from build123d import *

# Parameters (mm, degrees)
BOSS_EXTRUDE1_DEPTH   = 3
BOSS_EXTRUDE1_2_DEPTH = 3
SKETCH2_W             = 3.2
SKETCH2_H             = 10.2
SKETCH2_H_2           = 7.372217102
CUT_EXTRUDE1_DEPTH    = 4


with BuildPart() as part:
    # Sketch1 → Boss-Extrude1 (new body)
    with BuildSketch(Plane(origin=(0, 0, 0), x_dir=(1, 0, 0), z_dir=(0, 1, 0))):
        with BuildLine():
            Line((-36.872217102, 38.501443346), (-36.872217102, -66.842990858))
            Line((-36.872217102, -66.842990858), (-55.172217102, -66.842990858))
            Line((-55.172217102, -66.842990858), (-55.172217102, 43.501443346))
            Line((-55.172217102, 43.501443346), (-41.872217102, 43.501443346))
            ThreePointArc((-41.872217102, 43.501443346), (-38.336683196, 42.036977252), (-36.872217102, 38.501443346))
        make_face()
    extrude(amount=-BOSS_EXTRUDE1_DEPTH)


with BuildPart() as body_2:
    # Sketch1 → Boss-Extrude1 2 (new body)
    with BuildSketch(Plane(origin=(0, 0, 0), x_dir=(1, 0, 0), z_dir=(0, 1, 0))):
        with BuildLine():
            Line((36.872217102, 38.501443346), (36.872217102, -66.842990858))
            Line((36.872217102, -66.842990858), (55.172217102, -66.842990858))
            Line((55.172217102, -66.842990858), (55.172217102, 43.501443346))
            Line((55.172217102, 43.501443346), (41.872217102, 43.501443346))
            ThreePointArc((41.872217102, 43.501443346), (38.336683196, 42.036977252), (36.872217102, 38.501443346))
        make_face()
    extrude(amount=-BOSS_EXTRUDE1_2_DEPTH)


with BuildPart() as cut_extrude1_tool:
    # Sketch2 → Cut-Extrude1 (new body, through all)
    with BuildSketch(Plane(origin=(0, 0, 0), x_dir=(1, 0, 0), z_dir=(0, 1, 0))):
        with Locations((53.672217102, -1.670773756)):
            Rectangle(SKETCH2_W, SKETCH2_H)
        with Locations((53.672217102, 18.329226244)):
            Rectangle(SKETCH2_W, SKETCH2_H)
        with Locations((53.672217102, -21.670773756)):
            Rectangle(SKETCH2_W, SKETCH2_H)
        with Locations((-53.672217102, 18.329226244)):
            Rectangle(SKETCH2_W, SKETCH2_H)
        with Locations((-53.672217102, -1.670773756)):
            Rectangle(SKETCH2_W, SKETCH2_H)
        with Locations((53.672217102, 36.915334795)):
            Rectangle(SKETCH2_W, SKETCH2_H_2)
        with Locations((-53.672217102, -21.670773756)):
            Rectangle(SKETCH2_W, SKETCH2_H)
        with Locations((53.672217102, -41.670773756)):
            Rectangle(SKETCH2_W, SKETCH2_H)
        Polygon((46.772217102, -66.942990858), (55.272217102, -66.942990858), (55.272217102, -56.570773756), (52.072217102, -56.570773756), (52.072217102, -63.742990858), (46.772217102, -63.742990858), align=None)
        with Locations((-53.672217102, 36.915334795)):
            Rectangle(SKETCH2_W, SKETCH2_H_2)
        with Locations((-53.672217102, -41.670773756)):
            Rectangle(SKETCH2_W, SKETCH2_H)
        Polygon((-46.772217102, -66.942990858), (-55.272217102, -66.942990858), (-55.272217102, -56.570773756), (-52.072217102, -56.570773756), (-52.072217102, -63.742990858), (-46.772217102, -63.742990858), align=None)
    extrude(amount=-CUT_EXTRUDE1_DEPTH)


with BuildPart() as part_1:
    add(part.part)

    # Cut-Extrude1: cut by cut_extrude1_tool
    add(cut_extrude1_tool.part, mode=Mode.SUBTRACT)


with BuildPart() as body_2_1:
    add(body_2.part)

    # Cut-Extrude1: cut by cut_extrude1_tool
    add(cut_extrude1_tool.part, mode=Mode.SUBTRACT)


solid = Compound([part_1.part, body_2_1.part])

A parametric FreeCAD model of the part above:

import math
import FreeCAD as App
import Part
import Sketcher

doc = App.newDocument("Part")
body = doc.addObject("PartDesign::Body", "Body")

# Sketch on XZ plane
sketch1 = doc.addObject("Sketcher::SketchObject", "Sketch")
body.addObject(sketch1)
sketch1.AttachmentSupport = (doc.XZ_Plane, [""])
sketch1.MapMode = "FlatFace"
sketch1.addGeometry([
    Part.LineSegment(App.Vector(-37, 67, 0), App.Vector(-37, -39, 0)),  # 0
    Part.ArcOfCircle(Part.Circle(App.Vector(-42, -39, 0), App.Vector(0, 0, 1), 5), math.radians(-90), math.radians(0)),  # 1
    Part.LineSegment(App.Vector(-42, -44, 0), App.Vector(-55, -44, 0)),  # 2
    Part.LineSegment(App.Vector(-55, -44, 0), App.Vector(-55, 67, 0)),  # 3
    Part.LineSegment(App.Vector(-55, 67, 0), App.Vector(-37, 67, 0)),  # 4
], False)
sketch1.addConstraint([
    Sketcher.Constraint("Tangent", 0, 2, 1, 2),
    Sketcher.Constraint("Tangent", 1, 1, 2, 1),
    Sketcher.Constraint("Coincident", 2, 2, 3, 1),
    Sketcher.Constraint("Coincident", 3, 2, 4, 1),
    Sketcher.Constraint("Coincident", 4, 2, 0, 1),
    Sketcher.Constraint("Vertical", 0),
    Sketcher.Constraint("Horizontal", 2),
    Sketcher.Constraint("Vertical", 3),
    Sketcher.Constraint("Horizontal", 4),
    Sketcher.Constraint("Radius", 1, 5.0),
    Sketcher.Constraint("DistanceX", 2, 2, 2, 1, 13.3),
    Sketcher.Constraint("DistanceY", 0, 2, 0, 1, 105.344434),
    Sketcher.Constraint("DistanceY", -1, 1, 3, 2, 66.842991),
    Sketcher.Constraint("DistanceX", 1, 3, -1, 1, 41.872217),
])
pad1 = doc.addObject("PartDesign::Pad", "Pad")
body.addObject(pad1)
pad1.Profile = sketch1
pad1.Length = 3
body2 = doc.addObject("PartDesign::Body", "Body001")

# Sketch on XZ plane
sketch2 = doc.addObject("Sketcher::SketchObject", "Sketch001")
body2.addObject(sketch2)
sketch2.AttachmentSupport = (doc.getObject("XZ_Plane001"), [""])
sketch2.MapMode = "FlatFace"
sketch2.addGeometry([
    Part.LineSegment(App.Vector(37, -39, 0), App.Vector(37, 67, 0)),  # 0
    Part.LineSegment(App.Vector(37, 67, 0), App.Vector(55, 67, 0)),  # 1
    Part.LineSegment(App.Vector(55, 67, 0), App.Vector(55, -44, 0)),  # 2
    Part.LineSegment(App.Vector(55, -44, 0), App.Vector(42, -44, 0)),  # 3
    Part.ArcOfCircle(Part.Circle(App.Vector(42, -39, 0), App.Vector(0, 0, 1), 5), math.radians(180), math.radians(270)),  # 4
], False)
sketch2.addConstraint([
    Sketcher.Constraint("Coincident", 0, 2, 1, 1),
    Sketcher.Constraint("Coincident", 1, 2, 2, 1),
    Sketcher.Constraint("Coincident", 2, 2, 3, 1),
    Sketcher.Constraint("Tangent", 3, 2, 4, 2),
    Sketcher.Constraint("Tangent", 4, 1, 0, 1),
    Sketcher.Constraint("Vertical", 0),
    Sketcher.Constraint("Horizontal", 1),
    Sketcher.Constraint("Vertical", 2),
    Sketcher.Constraint("Horizontal", 3),
    Sketcher.Constraint("Radius", 4, 5.0),
    Sketcher.Constraint("DistanceX", 1, 1, 1, 2, 18.3),
    Sketcher.Constraint("DistanceY", 0, 1, 0, 2, 105.344434),
    Sketcher.Constraint("DistanceY", -1, 1, 0, 2, 66.842991),
    Sketcher.Constraint("DistanceX", -1, 1, 4, 3, 41.872217),
])
pad2 = doc.addObject("PartDesign::Pad", "Pad001")
body2.addObject(pad2)
pad2.Profile = sketch2
pad2.Length = 3
body3 = doc.addObject("PartDesign::Body", "Body002")
body3.AllowCompound = True

# Sketch on XZ plane
sketch3 = doc.addObject("Sketcher::SketchObject", "Sketch002")
body3.addObject(sketch3)
sketch3.AttachmentSupport = (doc.getObject("XZ_Plane002"), [""])
sketch3.MapMode = "FlatFace"
sketch3.addGeometry([
    Part.LineSegment(App.Vector(52.1, -3.4, 0), App.Vector(52.1, 6.8, 0)),  # 0
    Part.LineSegment(App.Vector(52.1, 6.8, 0), App.Vector(55.3, 6.8, 0)),  # 1
    Part.LineSegment(App.Vector(55.3, 6.8, 0), App.Vector(55.3, -3.4, 0)),  # 2
    Part.LineSegment(App.Vector(55.3, -3.4, 0), App.Vector(52.1, -3.4, 0)),  # 3
    Part.LineSegment(App.Vector(52.1, -23.4, 0), App.Vector(52.1, -13.2, 0)),  # 4
    Part.LineSegment(App.Vector(52.1, -13.2, 0), App.Vector(55.3, -13.2, 0)),  # 5
    Part.LineSegment(App.Vector(55.3, -13.2, 0), App.Vector(55.3, -23.4, 0)),  # 6
    Part.LineSegment(App.Vector(55.3, -23.4, 0), App.Vector(52.1, -23.4, 0)),  # 7
    Part.LineSegment(App.Vector(52.1, 16.6, 0), App.Vector(52.1, 26.8, 0)),  # 8
    Part.LineSegment(App.Vector(52.1, 26.8, 0), App.Vector(55.3, 26.8, 0)),  # 9
    Part.LineSegment(App.Vector(55.3, 26.8, 0), App.Vector(55.3, 16.6, 0)),  # 10
    Part.LineSegment(App.Vector(55.3, 16.6, 0), App.Vector(52.1, 16.6, 0)),  # 11
    Part.LineSegment(App.Vector(-55.3, -23.4, 0), App.Vector(-55.3, -13.2, 0)),  # 12
    Part.LineSegment(App.Vector(-55.3, -13.2, 0), App.Vector(-52.1, -13.2, 0)),  # 13
    Part.LineSegment(App.Vector(-52.1, -13.2, 0), App.Vector(-52.1, -23.4, 0)),  # 14
    Part.LineSegment(App.Vector(-52.1, -23.4, 0), App.Vector(-55.3, -23.4, 0)),  # 15
    Part.LineSegment(App.Vector(-55.3, -3.4, 0), App.Vector(-55.3, 6.8, 0)),  # 16
    Part.LineSegment(App.Vector(-55.3, 6.8, 0), App.Vector(-52.1, 6.8, 0)),  # 17
    Part.LineSegment(App.Vector(-52.1, 6.8, 0), App.Vector(-52.1, -3.4, 0)),  # 18
    Part.LineSegment(App.Vector(-52.1, -3.4, 0), App.Vector(-55.3, -3.4, 0)),  # 19
    Part.LineSegment(App.Vector(52.1, -40.6, 0), App.Vector(52.1, -33.2, 0)),  # 20
    Part.LineSegment(App.Vector(52.1, -33.2, 0), App.Vector(55.3, -33.2, 0)),  # 21
    Part.LineSegment(App.Vector(55.3, -33.2, 0), App.Vector(55.3, -40.6, 0)),  # 22
    Part.LineSegment(App.Vector(55.3, -40.6, 0), App.Vector(52.1, -40.6, 0)),  # 23
    Part.LineSegment(App.Vector(-55.3, 16.6, 0), App.Vector(-55.3, 26.8, 0)),  # 24
    Part.LineSegment(App.Vector(-55.3, 26.8, 0), App.Vector(-52.1, 26.8, 0)),  # 25
    Part.LineSegment(App.Vector(-52.1, 26.8, 0), App.Vector(-52.1, 16.6, 0)),  # 26
    Part.LineSegment(App.Vector(-52.1, 16.6, 0), App.Vector(-55.3, 16.6, 0)),  # 27
    Part.LineSegment(App.Vector(52.1, 36.6, 0), App.Vector(52.1, 46.8, 0)),  # 28
    Part.LineSegment(App.Vector(52.1, 46.8, 0), App.Vector(55.3, 46.8, 0)),  # 29
    Part.LineSegment(App.Vector(55.3, 46.8, 0), App.Vector(55.3, 36.6, 0)),  # 30
    Part.LineSegment(App.Vector(55.3, 36.6, 0), App.Vector(52.1, 36.6, 0)),  # 31
    Part.LineSegment(App.Vector(46.8, 66.9, 0), App.Vector(55.3, 66.9, 0)),  # 32
    Part.LineSegment(App.Vector(55.3, 66.9, 0), App.Vector(55.3, 56.6, 0)),  # 33
    Part.LineSegment(App.Vector(55.3, 56.6, 0), App.Vector(52.1, 56.6, 0)),  # 34
    Part.LineSegment(App.Vector(52.1, 56.6, 0), App.Vector(52.1, 63.7, 0)),  # 35
    Part.LineSegment(App.Vector(52.1, 63.7, 0), App.Vector(46.8, 63.7, 0)),  # 36
    Part.LineSegment(App.Vector(46.8, 63.7, 0), App.Vector(46.8, 66.9, 0)),  # 37
    Part.LineSegment(App.Vector(-55.3, -40.6, 0), App.Vector(-55.3, -33.2, 0)),  # 38
    Part.LineSegment(App.Vector(-55.3, -33.2, 0), App.Vector(-52.1, -33.2, 0)),  # 39
    Part.LineSegment(App.Vector(-52.1, -33.2, 0), App.Vector(-52.1, -40.6, 0)),  # 40
    Part.LineSegment(App.Vector(-52.1, -40.6, 0), App.Vector(-55.3, -40.6, 0)),  # 41
    Part.LineSegment(App.Vector(-55.3, 36.6, 0), App.Vector(-55.3, 46.8, 0)),  # 42
    Part.LineSegment(App.Vector(-55.3, 46.8, 0), App.Vector(-52.1, 46.8, 0)),  # 43
    Part.LineSegment(App.Vector(-52.1, 46.8, 0), App.Vector(-52.1, 36.6, 0)),  # 44
    Part.LineSegment(App.Vector(-52.1, 36.6, 0), App.Vector(-55.3, 36.6, 0)),  # 45
    Part.LineSegment(App.Vector(-55.3, 66.9, 0), App.Vector(-46.8, 66.9, 0)),  # 46
    Part.LineSegment(App.Vector(-46.8, 66.9, 0), App.Vector(-46.8, 63.7, 0)),  # 47
    Part.LineSegment(App.Vector(-46.8, 63.7, 0), App.Vector(-52.1, 63.7, 0)),  # 48
    Part.LineSegment(App.Vector(-52.1, 63.7, 0), App.Vector(-52.1, 56.6, 0)),  # 49
    Part.LineSegment(App.Vector(-52.1, 56.6, 0), App.Vector(-55.3, 56.6, 0)),  # 50
    Part.LineSegment(App.Vector(-55.3, 56.6, 0), App.Vector(-55.3, 66.9, 0)),  # 51
], False)
sketch3.addConstraint([
    Sketcher.Constraint("Coincident", 0, 2, 1, 1),
    Sketcher.Constraint("Coincident", 1, 2, 2, 1),
    Sketcher.Constraint("Coincident", 2, 2, 3, 1),
    Sketcher.Constraint("Coincident", 3, 2, 0, 1),
    Sketcher.Constraint("Coincident", 4, 2, 5, 1),
    Sketcher.Constraint("Coincident", 5, 2, 6, 1),
    Sketcher.Constraint("Coincident", 6, 2, 7, 1),
    Sketcher.Constraint("Coincident", 7, 2, 4, 1),
    Sketcher.Constraint("Coincident", 8, 2, 9, 1),
    Sketcher.Constraint("Coincident", 9, 2, 10, 1),
    Sketcher.Constraint("Coincident", 10, 2, 11, 1),
    Sketcher.Constraint("Coincident", 11, 2, 8, 1),
    Sketcher.Constraint("Coincident", 12, 2, 13, 1),
    Sketcher.Constraint("Coincident", 13, 2, 14, 1),
    Sketcher.Constraint("Coincident", 14, 2, 15, 1),
    Sketcher.Constraint("Coincident", 15, 2, 12, 1),
    Sketcher.Constraint("Coincident", 16, 2, 17, 1),
    Sketcher.Constraint("Coincident", 17, 2, 18, 1),
    Sketcher.Constraint("Coincident", 18, 2, 19, 1),
    Sketcher.Constraint("Coincident", 19, 2, 16, 1),
    Sketcher.Constraint("Coincident", 20, 2, 21, 1),
    Sketcher.Constraint("Coincident", 21, 2, 22, 1),
    Sketcher.Constraint("Coincident", 22, 2, 23, 1),
    Sketcher.Constraint("Coincident", 23, 2, 20, 1),
    Sketcher.Constraint("Coincident", 24, 2, 25, 1),
    Sketcher.Constraint("Coincident", 25, 2, 26, 1),
    Sketcher.Constraint("Coincident", 26, 2, 27, 1),
    Sketcher.Constraint("Coincident", 27, 2, 24, 1),
    Sketcher.Constraint("Coincident", 28, 2, 29, 1),
    Sketcher.Constraint("Coincident", 29, 2, 30, 1),
    Sketcher.Constraint("Coincident", 30, 2, 31, 1),
    Sketcher.Constraint("Coincident", 31, 2, 28, 1),
    Sketcher.Constraint("Coincident", 32, 2, 33, 1),
    Sketcher.Constraint("Coincident", 33, 2, 34, 1),
    Sketcher.Constraint("Coincident", 34, 2, 35, 1),
    Sketcher.Constraint("Coincident", 35, 2, 36, 1),
    Sketcher.Constraint("Coincident", 36, 2, 37, 1),
    Sketcher.Constraint("Coincident", 37, 2, 32, 1),
    Sketcher.Constraint("Coincident", 38, 2, 39, 1),
    Sketcher.Constraint("Coincident", 39, 2, 40, 1),
    Sketcher.Constraint("Coincident", 40, 2, 41, 1),
    Sketcher.Constraint("Coincident", 41, 2, 38, 1),
    Sketcher.Constraint("Coincident", 42, 2, 43, 1),
    Sketcher.Constraint("Coincident", 43, 2, 44, 1),
    Sketcher.Constraint("Coincident", 44, 2, 45, 1),
    Sketcher.Constraint("Coincident", 45, 2, 42, 1),
    Sketcher.Constraint("Coincident", 46, 2, 47, 1),
    Sketcher.Constraint("Coincident", 47, 2, 48, 1),
    Sketcher.Constraint("Coincident", 48, 2, 49, 1),
    Sketcher.Constraint("Coincident", 49, 2, 50, 1),
    Sketcher.Constraint("Coincident", 50, 2, 51, 1),
    Sketcher.Constraint("Coincident", 51, 2, 46, 1),
    Sketcher.Constraint("Vertical", 0),
    Sketcher.Constraint("Horizontal", 1),
    Sketcher.Constraint("Vertical", 2),
    Sketcher.Constraint("Horizontal", 3),
    Sketcher.Constraint("Vertical", 4),
    Sketcher.Constraint("Horizontal", 5),
    Sketcher.Constraint("Vertical", 6),
    Sketcher.Constraint("Horizontal", 7),
    Sketcher.Constraint("Vertical", 8),
    Sketcher.Constraint("Horizontal", 9),
    Sketcher.Constraint("Vertical", 10),
    Sketcher.Constraint("Horizontal", 11),
    Sketcher.Constraint("Vertical", 12),
    Sketcher.Constraint("Horizontal", 13),
    Sketcher.Constraint("Vertical", 14),
    Sketcher.Constraint("Horizontal", 15),
    Sketcher.Constraint("Vertical", 16),
    Sketcher.Constraint("Horizontal", 17),
    Sketcher.Constraint("Vertical", 18),
    Sketcher.Constraint("Horizontal", 19),
    Sketcher.Constraint("Vertical", 20),
    Sketcher.Constraint("Horizontal", 21),
    Sketcher.Constraint("Vertical", 22),
    Sketcher.Constraint("Horizontal", 23),
    Sketcher.Constraint("Vertical", 24),
    Sketcher.Constraint("Horizontal", 25),
    Sketcher.Constraint("Vertical", 26),
    Sketcher.Constraint("Horizontal", 27),
    Sketcher.Constraint("Vertical", 28),
    Sketcher.Constraint("Horizontal", 29),
    Sketcher.Constraint("Vertical", 30),
    Sketcher.Constraint("Horizontal", 31),
    Sketcher.Constraint("Horizontal", 32),
    Sketcher.Constraint("Vertical", 33),
    Sketcher.Constraint("Horizontal", 34),
    Sketcher.Constraint("Vertical", 35),
    Sketcher.Constraint("Horizontal", 36),
    Sketcher.Constraint("Vertical", 37),
    Sketcher.Constraint("Vertical", 38),
    Sketcher.Constraint("Horizontal", 39),
    Sketcher.Constraint("Vertical", 40),
    Sketcher.Constraint("Horizontal", 41),
    Sketcher.Constraint("Vertical", 42),
    Sketcher.Constraint("Horizontal", 43),
    Sketcher.Constraint("Vertical", 44),
    Sketcher.Constraint("Horizontal", 45),
    Sketcher.Constraint("Horizontal", 46),
    Sketcher.Constraint("Vertical", 47),
    Sketcher.Constraint("Horizontal", 48),
    Sketcher.Constraint("Vertical", 49),
    Sketcher.Constraint("Horizontal", 50),
    Sketcher.Constraint("Vertical", 51),
    Sketcher.Constraint("Symmetric", 5, 2, 12, 2, -2),
    Sketcher.Constraint("Symmetric", 7, 2, 14, 2, -2),
    Sketcher.Constraint("Symmetric", 1, 2, 16, 2, -2),
    Sketcher.Constraint("Symmetric", 3, 2, 18, 2, -2),
    Sketcher.Constraint("Symmetric", 9, 2, 24, 2, -2),
    Sketcher.Constraint("Symmetric", 11, 2, 26, 2, -2),
    Sketcher.Constraint("Symmetric", 21, 2, 38, 2, -2),
    Sketcher.Constraint("Symmetric", 23, 2, 40, 2, -2),
    Sketcher.Constraint("Symmetric", 29, 2, 42, 2, -2),
    Sketcher.Constraint("Symmetric", 31, 2, 44, 2, -2),
    Sketcher.Constraint("Symmetric", 37, 2, 46, 2, -2),
    Sketcher.Constraint("Symmetric", 35, 2, 48, 2, -2),
    Sketcher.Constraint("Symmetric", 33, 2, 50, 2, -2),
    Sketcher.Constraint("Vertical", 3, 2, 4, 2),
    Sketcher.Constraint("Vertical", 2, 2, 5, 2),
    Sketcher.Constraint("Vertical", 7, 2, 8, 2),
    Sketcher.Constraint("Vertical", 6, 2, 9, 2),
    Sketcher.Constraint("Vertical", 11, 2, 20, 2),
    Sketcher.Constraint("Vertical", 10, 2, 21, 2),
    Sketcher.Constraint("Vertical", 23, 2, 28, 2),
    Sketcher.Constraint("Vertical", 22, 2, 29, 2),
    Sketcher.Constraint("Vertical", 30, 2, 32, 2),
    Sketcher.Constraint("Vertical", 31, 2, 34, 2),
    Sketcher.Constraint("Equal", 2, 4),
    Sketcher.Constraint("Equal", 6, 8),
    Sketcher.Constraint("Equal", 26, 28),
    Sketcher.Constraint("Equal", 50, 37),
    Sketcher.Constraint("DistanceX", 1, 1, 1, 2, 3.2),
    Sketcher.Constraint("DistanceX", 32, 1, 32, 2, 8.5),
    Sketcher.Constraint("DistanceY", 0, 1, 0, 2, 10.2),
    Sketcher.Constraint("DistanceY", 4, 2, 0, 2, 20.0),
    Sketcher.Constraint("DistanceY", 0, 2, 8, 2, 20.0),
    Sketcher.Constraint("DistanceY", 20, 2, 4, 2, 20.0),
    Sketcher.Constraint("DistanceY", 8, 2, 28, 2, 20.0),
    Sketcher.Constraint("DistanceY", 30, 2, 33, 2, 20.0),
    Sketcher.Constraint("DistanceY", 20, 1, 20, 2, 7.372217),
    Sketcher.Constraint("DistanceY", 33, 2, 33, 1, 10.372217),
    Sketcher.Constraint("DistanceY", -1, 1, 32, 2, 66.942991),
    Sketcher.Constraint("DistanceX", -1, 1, 0, 2, 52.072217),
])
pad3 = doc.addObject("PartDesign::Pad", "Pad002")
body3.addObject(pad3)
pad3.Profile = sketch3
pad3.Length = 4
doc.recompute()

body4 = doc.addObject("PartDesign::Body", "Body003")
body4.BaseFeature = body3
boolean = doc.addObject("PartDesign::Boolean", "Boolean")
body.addObject(boolean)
boolean.Type = "Cut"
boolean.addObjects([body4])
doc.recompute()

boolean2 = doc.addObject("PartDesign::Boolean", "Boolean001")
body2.addObject(boolean2)
boolean2.Type = "Cut"
boolean2.addObjects([body3])

doc.recompute()
